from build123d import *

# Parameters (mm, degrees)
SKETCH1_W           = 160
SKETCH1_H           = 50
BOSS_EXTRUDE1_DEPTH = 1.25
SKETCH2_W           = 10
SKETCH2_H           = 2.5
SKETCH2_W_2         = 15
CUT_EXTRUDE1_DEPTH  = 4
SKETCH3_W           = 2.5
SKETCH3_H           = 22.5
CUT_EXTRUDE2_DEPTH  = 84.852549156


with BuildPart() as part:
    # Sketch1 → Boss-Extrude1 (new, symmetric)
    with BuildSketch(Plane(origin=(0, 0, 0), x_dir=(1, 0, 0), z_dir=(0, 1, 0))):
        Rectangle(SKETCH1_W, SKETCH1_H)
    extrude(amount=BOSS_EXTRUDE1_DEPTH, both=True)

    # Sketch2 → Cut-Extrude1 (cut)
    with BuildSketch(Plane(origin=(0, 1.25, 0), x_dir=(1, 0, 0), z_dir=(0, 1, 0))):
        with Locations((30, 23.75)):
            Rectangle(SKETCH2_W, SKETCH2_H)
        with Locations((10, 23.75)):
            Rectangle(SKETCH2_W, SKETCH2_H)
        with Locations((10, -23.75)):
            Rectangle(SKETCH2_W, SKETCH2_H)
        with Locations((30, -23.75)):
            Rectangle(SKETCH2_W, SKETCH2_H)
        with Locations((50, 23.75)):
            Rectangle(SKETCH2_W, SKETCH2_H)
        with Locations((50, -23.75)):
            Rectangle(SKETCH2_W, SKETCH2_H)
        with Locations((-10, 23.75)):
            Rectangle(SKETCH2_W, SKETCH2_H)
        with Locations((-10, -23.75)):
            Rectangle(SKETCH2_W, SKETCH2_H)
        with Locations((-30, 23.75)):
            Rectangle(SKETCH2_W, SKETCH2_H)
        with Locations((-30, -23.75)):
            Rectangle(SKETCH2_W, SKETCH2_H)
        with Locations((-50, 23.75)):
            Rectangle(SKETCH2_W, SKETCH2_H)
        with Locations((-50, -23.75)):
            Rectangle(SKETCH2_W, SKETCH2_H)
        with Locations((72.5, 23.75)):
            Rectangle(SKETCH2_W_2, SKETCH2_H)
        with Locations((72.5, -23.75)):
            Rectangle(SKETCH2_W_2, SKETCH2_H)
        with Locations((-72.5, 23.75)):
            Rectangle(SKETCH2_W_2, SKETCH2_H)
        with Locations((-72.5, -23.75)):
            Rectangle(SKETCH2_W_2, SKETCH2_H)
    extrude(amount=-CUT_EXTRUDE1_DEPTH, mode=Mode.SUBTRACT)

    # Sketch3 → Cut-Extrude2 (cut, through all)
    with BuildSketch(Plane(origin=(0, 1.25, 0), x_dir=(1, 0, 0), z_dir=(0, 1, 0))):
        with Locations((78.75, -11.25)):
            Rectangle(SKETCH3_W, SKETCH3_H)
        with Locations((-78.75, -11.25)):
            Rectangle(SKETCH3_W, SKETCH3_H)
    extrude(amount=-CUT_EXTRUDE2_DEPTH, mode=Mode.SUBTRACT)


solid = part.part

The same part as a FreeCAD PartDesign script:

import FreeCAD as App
import Part
import Sketcher
from FreeCAD import Vector

doc = App.newDocument("Part")
body = doc.addObject("PartDesign::Body", "Body")

sketch1 = doc.addObject("Sketcher::SketchObject", "Sketch")
body.addObject(sketch1)
sketch1.AttachmentSupport = (doc.XZ_Plane, [""])
sketch1.MapMode = "FlatFace"
sketch1.addGeometry([
    Part.LineSegment(Vector(-80, -25, 0), Vector(-80, 25, 0)),
    Part.LineSegment(Vector(-80, 25, 0), Vector(80, 25, 0)),
    Part.LineSegment(Vector(80, 25, 0), Vector(80, -25, 0)),
    Part.LineSegment(Vector(80, -25, 0), Vector(-80, -25, 0)),
], False)
sketch1.addConstraint([
    Sketcher.Constraint("Coincident", 0, 2, 1, 1),
    Sketcher.Constraint("Coincident", 1, 2, 2, 1),
    Sketcher.Constraint("Coincident", 2, 2, 3, 1),
    Sketcher.Constraint("Coincident", 3, 2, 0, 1),
    Sketcher.Constraint("Vertical", 0),
    Sketcher.Constraint("Horizontal", 1),
    Sketcher.Constraint("Vertical", 2),
    Sketcher.Constraint("Horizontal", 3),
    Sketcher.Constraint("Symmetric", 0, 2, 2, 2, -1, 1),
    Sketcher.Constraint("DistanceX", 1, 1, 1, 2, 160.0),
    Sketcher.Constraint("DistanceY", 0, 1, 0, 2, 50.0),
])
pad1 = doc.addObject("PartDesign::Pad", "Pad")
body.addObject(pad1)
pad1.Profile = sketch1
pad1.Length = 2.5
pad1.Midplane = True

sketch2 = doc.addObject("Sketcher::SketchObject", "Sketch001")
body.addObject(sketch2)
sketch2.AttachmentSupport = (doc.XZ_Plane, [""])
sketch2.MapMode = "FlatFace"
sketch2.AttachmentOffset = App.Placement(Vector(0, 0, -1.25), App.Rotation())
sketch2.addGeometry([
    Part.LineSegment(Vector(25, -25, 0), Vector(25, -22.5, 0)),
    Part.LineSegment(Vector(25, -22.5, 0), Vector(35, -22.5, 0)),
    Part.LineSegment(Vector(35, -22.5, 0), Vector(35, -25, 0)),
    Part.LineSegment(Vector(35, -25, 0), Vector(25, -25, 0)),
    Part.LineSegment(Vector(5, -25, 0), Vector(5, -22.5, 0)),
    Part.LineSegment(Vector(5, -22.5, 0), Vector(15, -22.5, 0)),
    Part.LineSegment(Vector(15, -22.5, 0), Vector(15, -25, 0)),
    Part.LineSegment(Vector(15, -25, 0), Vector(5, -25, 0)),
    Part.LineSegment(Vector(5, 22.5, 0), Vector(5, 25, 0)),
    Part.LineSegment(Vector(5, 25, 0), Vector(15, 25, 0)),
    Part.LineSegment(Vector(15, 25, 0), Vector(15, 22.5, 0)),
    Part.LineSegment(Vector(15, 22.5, 0), Vector(5, 22.5, 0)),
    Part.LineSegment(Vector(25, 22.5, 0), Vector(25, 25, 0)),
    Part.LineSegment(Vector(25, 25, 0), Vector(35, 25, 0)),
    Part.LineSegment(Vector(35, 25, 0), Vector(35, 22.5, 0)),
    Part.LineSegment(Vector(35, 22.5, 0), Vector(25, 22.5, 0)),
    Part.LineSegment(Vector(45, -25, 0), Vector(45, -22.5, 0)),
    Part.LineSegment(Vector(45, -22.5, 0), Vector(55, -22.5, 0)),
    Part.LineSegment(Vector(55, -22.5, 0), Vector(55, -25, 0)),
    Part.LineSegment(Vector(55, -25, 0), Vector(45, -25, 0)),
    Part.LineSegment(Vector(45, 22.5, 0), Vector(45, 25, 0)),
    Part.LineSegment(Vector(45, 25, 0), Vector(55, 25, 0)),
    Part.LineSegment(Vector(55, 25, 0), Vector(55, 22.5, 0)),
    Part.LineSegment(Vector(55, 22.5, 0), Vector(45, 22.5, 0)),
    Part.LineSegment(Vector(-15, -25, 0), Vector(-15, -22.5, 0)),
    Part.LineSegment(Vector(-15, -22.5, 0), Vector(-5, -22.5, 0)),
    Part.LineSegment(Vector(-5, -22.5, 0), Vector(-5, -25, 0)),
    Part.LineSegment(Vector(-5, -25, 0), Vector(-15, -25, 0)),
    Part.LineSegment(Vector(-15, 22.5, 0), Vector(-15, 25, 0)),
    Part.LineSegment(Vector(-15, 25, 0), Vector(-5, 25, 0)),
    Part.LineSegment(Vector(-5, 25, 0), Vector(-5, 22.5, 0)),
    Part.LineSegment(Vector(-5, 22.5, 0), Vector(-15, 22.5, 0)),
    Part.LineSegment(Vector(-35, -25, 0), Vector(-35, -22.5, 0)),
    Part.LineSegment(Vector(-35, -22.5, 0), Vector(-25, -22.5, 0)),
    Part.LineSegment(Vector(-25, -22.5, 0), Vector(-25, -25, 0)),
    Part.LineSegment(Vector(-25, -25, 0), Vector(-35, -25, 0)),
    Part.LineSegment(Vector(-35, 22.5, 0), Vector(-35, 25, 0)),
    Part.LineSegment(Vector(-35, 25, 0), Vector(-25, 25, 0)),
    Part.LineSegment(Vector(-25, 25, 0), Vector(-25, 22.5, 0)),
    Part.LineSegment(Vector(-25, 22.5, 0), Vector(-35, 22.5, 0)),
    Part.LineSegment(Vector(-55, -25, 0), Vector(-55, -22.5, 0)),
    Part.LineSegment(Vector(-55, -22.5, 0), Vector(-45, -22.5, 0)),
    Part.LineSegment(Vector(-45, -22.5, 0), Vector(-45, -25, 0)),
    Part.LineSegment(Vector(-45, -25, 0), Vector(-55, -25, 0)),
    Part.LineSegment(Vector(-55, 22.5, 0), Vector(-55, 25, 0)),
    Part.LineSegment(Vector(-55, 25, 0), Vector(-45, 25, 0)),
    Part.LineSegment(Vector(-45, 25, 0), Vector(-45, 22.5, 0)),
    Part.LineSegment(Vector(-45, 22.5, 0), Vector(-55, 22.5, 0)),
    Part.LineSegment(Vector(65, -25, 0), Vector(65, -22.5, 0)),
    Part.LineSegment(Vector(65, -22.5, 0), Vector(80, -22.5, 0)),
    Part.LineSegment(Vector(80, -22.5, 0), Vector(80, -25, 0)),
    Part.LineSegment(Vector(80, -25, 0), Vector(65, -25, 0)),
    Part.LineSegment(Vector(65, 22.5, 0), Vector(65, 25, 0)),
    Part.LineSegment(Vector(65, 25, 0), Vector(80, 25, 0)),
    Part.LineSegment(Vector(80, 25, 0), Vector(80, 22.5, 0)),
    Part.LineSegment(Vector(80, 22.5, 0), Vector(65, 22.5, 0)),
    Part.LineSegment(Vector(-80, -25, 0), Vector(-80, -22.5, 0)),
    Part.LineSegment(Vector(-80, -22.5, 0), Vector(-65, -22.5, 0)),
    Part.LineSegment(Vector(-65, -22.5, 0), Vector(-65, -25, 0)),
    Part.LineSegment(Vector(-65, -25, 0), Vector(-80, -25, 0)),
    Part.LineSegment(Vector(-80, 22.5, 0), Vector(-80, 25, 0)),
    Part.LineSegment(Vector(-80, 25, 0), Vector(-65, 25, 0)),
    Part.LineSegment(Vector(-65, 25, 0), Vector(-65, 22.5, 0)),
    Part.LineSegment(Vector(-65, 22.5, 0), Vector(-80, 22.5, 0)),
], False)
sketch2.addConstraint([
    Sketcher.Constraint("Coincident", 0, 2, 1, 1),
    Sketcher.Constraint("Coincident", 1, 2, 2, 1),
    Sketcher.Constraint("Coincident", 2, 2, 3, 1),
    Sketcher.Constraint("Coincident", 3, 2, 0, 1),
    Sketcher.Constraint("Coincident", 4, 2, 5, 1),
    Sketcher.Constraint("Coincident", 5, 2, 6, 1),
    Sketcher.Constraint("Coincident", 6, 2, 7, 1),
    Sketcher.Constraint("Coincident", 7, 2, 4, 1),
    Sketcher.Constraint("Coincident", 8, 2, 9, 1),
    Sketcher.Constraint("Coincident", 9, 2, 10, 1),
    Sketcher.Constraint("Coincident", 10, 2, 11, 1),
    Sketcher.Constraint("Coincident", 11, 2, 8, 1),
    Sketcher.Constraint("Coincident", 12, 2, 13, 1),
    Sketcher.Constraint("Coincident", 13, 2, 14, 1),
    Sketcher.Constraint("Coincident", 14, 2, 15, 1),
    Sketcher.Constraint("Coincident", 15, 2, 12, 1),
    Sketcher.Constraint("Coincident", 16, 2, 17, 1),
    Sketcher.Constraint("Coincident", 17, 2, 18, 1),
    Sketcher.Constraint("Coincident", 18, 2, 19, 1),
    Sketcher.Constraint("Coincident", 19, 2, 16, 1),
    Sketcher.Constraint("Coincident", 20, 2, 21, 1),
    Sketcher.Constraint("Coincident", 21, 2, 22, 1),
    Sketcher.Constraint("Coincident", 22, 2, 23, 1),
    Sketcher.Constraint("Coincident", 23, 2, 20, 1),
    Sketcher.Constraint("Coincident", 24, 2, 25, 1),
    Sketcher.Constraint("Coincident", 25, 2, 26, 1),
    Sketcher.Constraint("Coincident", 26, 2, 27, 1),
    Sketcher.Constraint("Coincident", 27, 2, 24, 1),
    Sketcher.Constraint("Coincident", 28, 2, 29, 1),
    Sketcher.Constraint("Coincident", 29, 2, 30, 1),
    Sketcher.Constraint("Coincident", 30, 2, 31, 1),
    Sketcher.Constraint("Coincident", 31, 2, 28, 1),
    Sketcher.Constraint("Coincident", 32, 2, 33, 1),
    Sketcher.Constraint("Coincident", 33, 2, 34, 1),
    Sketcher.Constraint("Coincident", 34, 2, 35, 1),
    Sketcher.Constraint("Coincident", 35, 2, 32, 1),
    Sketcher.Constraint("Coincident", 36, 2, 37, 1),
    Sketcher.Constraint("Coincident", 37, 2, 38, 1),
    Sketcher.Constraint("Coincident", 38, 2, 39, 1),
    Sketcher.Constraint("Coincident", 39, 2, 36, 1),
    Sketcher.Constraint("Coincident", 40, 2, 41, 1),
    Sketcher.Constraint("Coincident", 41, 2, 42, 1),
    Sketcher.Constraint("Coincident", 42, 2, 43, 1),
    Sketcher.Constraint("Coincident", 43, 2, 40, 1),
    Sketcher.Constraint("Coincident", 44, 2, 45, 1),
    Sketcher.Constraint("Coincident", 45, 2, 46, 1),
    Sketcher.Constraint("Coincident", 46, 2, 47, 1),
    Sketcher.Constraint("Coincident", 47, 2, 44, 1),
    Sketcher.Constraint("Coincident", 48, 2, 49, 1),
    Sketcher.Constraint("Coincident", 49, 2, 50, 1),
    Sketcher.Constraint("Coincident", 50, 2, 51, 1),
    Sketcher.Constraint("Coincident", 51, 2, 48, 1),
    Sketcher.Constraint("Coincident", 52, 2, 53, 1),
    Sketcher.Constraint("Coincident", 53, 2, 54, 1),
    Sketcher.Constraint("Coincident", 54, 2, 55, 1),
    Sketcher.Constraint("Coincident", 55, 2, 52, 1),
    Sketcher.Constraint("Coincident", 56, 2, 57, 1),
    Sketcher.Constraint("Coincident", 57, 2, 58, 1),
    Sketcher.Constraint("Coincident", 58, 2, 59, 1),
    Sketcher.Constraint("Coincident", 59, 2, 56, 1),
    Sketcher.Constraint("Coincident", 60, 2, 61, 1),
    Sketcher.Constraint("Coincident", 61, 2, 62, 1),
    Sketcher.Constraint("Coincident", 62, 2, 63, 1),
    Sketcher.Constraint("Coincident", 63, 2, 60, 1),
    Sketcher.Constraint("Vertical", 0),
    Sketcher.Constraint("Horizontal", 1),
    Sketcher.Constraint("Vertical", 2),
    Sketcher.Constraint("Horizontal", 3),
    Sketcher.Constraint("Vertical", 4),
    Sketcher.Constraint("Horizontal", 5),
    Sketcher.Constraint("Vertical", 6),
    Sketcher.Constraint("Horizontal", 7),
    Sketcher.Constraint("Vertical", 8),
    Sketcher.Constraint("Horizontal", 9),
    Sketcher.Constraint("Vertical", 10),
    Sketcher.Constraint("Horizontal", 11),
    Sketcher.Constraint("Vertical", 12),
    Sketcher.Constraint("Horizontal", 13),
    Sketcher.Constraint("Vertical", 14),
    Sketcher.Constraint("Horizontal", 15),
    Sketcher.Constraint("Vertical", 16),
    Sketcher.Constraint("Horizontal", 17),
    Sketcher.Constraint("Vertical", 18),
    Sketcher.Constraint("Horizontal", 19),
    Sketcher.Constraint("Vertical", 20),
    Sketcher.Constraint("Horizontal", 21),
    Sketcher.Constraint("Vertical", 22),
    Sketcher.Constraint("Horizontal", 23),
    Sketcher.Constraint("Vertical", 24),
    Sketcher.Constraint("Horizontal", 25),
    Sketcher.Constraint("Vertical", 26),
    Sketcher.Constraint("Horizontal", 27),
    Sketcher.Constraint("Vertical", 28),
    Sketcher.Constraint("Horizontal", 29),
    Sketcher.Constraint("Vertical", 30),
    Sketcher.Constraint("Horizontal", 31),
    Sketcher.Constraint("Vertical", 32),
    Sketcher.Constraint("Horizontal", 33),
    Sketcher.Constraint("Vertical", 34),
    Sketcher.Constraint("Horizontal", 35),
    Sketcher.Constraint("Vertical", 36),
    Sketcher.Constraint("Horizontal", 37),
    Sketcher.Constraint("Vertical", 38),
    Sketcher.Constraint("Horizontal", 39),
    Sketcher.Constraint("Vertical", 40),
    Sketcher.Constraint("Horizontal", 41),
    Sketcher.Constraint("Vertical", 42),
    Sketcher.Constraint("Horizontal", 43),
    Sketcher.Constraint("Vertical", 44),
    Sketcher.Constraint("Horizontal", 45),
    Sketcher.Constraint("Vertical", 46),
    Sketcher.Constraint("Horizontal", 47),
    Sketcher.Constraint("Vertical", 48),
    Sketcher.Constraint("Horizontal", 49),
    Sketcher.Constraint("Vertical", 50),
    Sketcher.Constraint("Horizontal", 51),
    Sketcher.Constraint("Vertical", 52),
    Sketcher.Constraint("Horizontal", 53),
    Sketcher.Constraint("Vertical", 54),
    Sketcher.Constraint("Horizontal", 55),
    Sketcher.Constraint("Vertical", 56),
    Sketcher.Constraint("Horizontal", 57),
    Sketcher.Constraint("Vertical", 58),
    Sketcher.Constraint("Horizontal", 59),
    Sketcher.Constraint("Vertical", 60),
    Sketcher.Constraint("Horizontal", 61),
    Sketcher.Constraint("Vertical", 62),
    Sketcher.Constraint("Horizontal", 63),
    Sketcher.Constraint("Symmetric", 10, 2, 24, 2, -1, 1),
    Sketcher.Constraint("Symmetric", 8, 2, 26, 2, -1, 1),
    Sketcher.Constraint("Symmetric", 6, 2, 28, 2, -1, 1),
    Sketcher.Constraint("Symmetric", 4, 2, 30, 2, -1, 1),
    Sketcher.Constraint("Symmetric", 14, 2, 32, 2, -1, 1),
    Sketcher.Constraint("Symmetric", 12, 2, 34, 2, -1, 1),
    Sketcher.Constraint("Symmetric", 2, 2, 36, 2, -1, 1),
    Sketcher.Constraint("Symmetric", 0, 2, 38, 2, -1, 1),
    Sketcher.Constraint("Symmetric", 22, 2, 40, 2, -1, 1),
    Sketcher.Constraint("Symmetric", 20, 2, 42, 2, -1, 1),
    Sketcher.Constraint("Symmetric", 18, 2, 44, 2, -1, 1),
    Sketcher.Constraint("Symmetric", 16, 2, 46, 2, -1, 1),
    Sketcher.Constraint("Symmetric", 54, 2, 56, 2, -1, 1),
    Sketcher.Constraint("Symmetric", 52, 2, 58, 2, -1, 1),
    Sketcher.Constraint("Symmetric", 50, 2, 60, 2, -1, 1),
    Sketcher.Constraint("Symmetric", 48, 2, 62, 2, -1, 1),
    Sketcher.Constraint("Symmetric", 5, 2, 24, 2, -2),
    Sketcher.Constraint("Symmetric", 7, 2, 26, 2, -2),
    Sketcher.Constraint("Symmetric", 1, 2, 32, 2, -2),
    Sketcher.Constraint("Symmetric", 3, 2, 34, 2, -2),
    Sketcher.Constraint("Symmetric", 17, 2, 40, 2, -2),
    Sketcher.Constraint("Symmetric", 19, 2, 42, 2, -2),
    Sketcher.Constraint("Symmetric", 49, 2, 56, 2, -2),
    Sketcher.Constraint("Symmetric", 51, 2, 58, 2, -2),
    Sketcher.Constraint("Horizontal", 1, 2, 4, 2),
    Sketcher.Constraint("Horizontal", 3, 2, 6, 2),
    Sketcher.Constraint("Horizontal", 5, 2, 16, 2),
    Sketcher.Constraint("Horizontal", 7, 2, 18, 2),
    Sketcher.Constraint("Horizontal", 41, 2, 48, 2),
    Sketcher.Constraint("Horizontal", 43, 2, 50, 2),
    Sketcher.Constraint("Equal", 3, 5),
    Sketcher.Constraint("Equal", 15, 17),
    Sketcher.Constraint("DistanceX", 1, 1, 1, 2, 10.0),
    Sketcher.Constraint("DistanceX", 49, 1, 49, 2, 15.0),
    Sketcher.Constraint("DistanceY", 0, 1, 0, 2, 2.5),
    Sketcher.Constraint("DistanceX", -1, 1, 0, 2, 25.0),
    Sketcher.Constraint("DistanceY", 2, 2, -1, 1, 25.0),
    Sketcher.Constraint("DistanceX", -1, 1, 4, 2, 5.0),
    Sketcher.Constraint("DistanceX", -1, 1, 16, 2, 45.0),
    Sketcher.Constraint("DistanceX", -1, 1, 48, 2, 65.0),
])
pocket1 = doc.addObject("PartDesign::Pocket", "Pocket")
body.addObject(pocket1)
pocket1.Profile = sketch2
pocket1.Length = 4
pocket1.Reversed = True

sketch3 = doc.addObject("Sketcher::SketchObject", "Sketch002")
body.addObject(sketch3)
sketch3.AttachmentSupport = (doc.XZ_Plane, [""])
sketch3.MapMode = "FlatFace"
sketch3.AttachmentOffset = App.Placement(Vector(0, 0, -1.25), App.Rotation())
sketch3.addGeometry([
    Part.LineSegment(Vector(77.5, 0, 0), Vector(77.5, 22.5, 0)),
    Part.LineSegment(Vector(77.5, 22.5, 0), Vector(80, 22.5, 0)),
    Part.LineSegment(Vector(80, 22.5, 0), Vector(80, 0, 0)),
    Part.LineSegment(Vector(80, 0, 0), Vector(77.5, 0, 0)),
    Part.LineSegment(Vector(-80, 0, 0), Vector(-80, 22.5, 0)),
    Part.LineSegment(Vector(-80, 22.5, 0), Vector(-77.5, 22.5, 0)),
    Part.LineSegment(Vector(-77.5, 22.5, 0), Vector(-77.5, 0, 0)),
    Part.LineSegment(Vector(-77.5, 0, 0), Vector(-80, 0, 0)),
], False)
sketch3.addConstraint([
    Sketcher.Constraint("Coincident", 0, 2, 1, 1),
    Sketcher.Constraint("Coincident", 1, 2, 2, 1),
    Sketcher.Constraint("Coincident", 2, 2, 3, 1),
    Sketcher.Constraint("Coincident", 3, 2, 0, 1),
    Sketcher.Constraint("Coincident", 4, 2, 5, 1),
    Sketcher.Constraint("Coincident", 5, 2, 6, 1),
    Sketcher.Constraint("Coincident", 6, 2, 7, 1),
    Sketcher.Constraint("Coincident", 7, 2, 4, 1),
    Sketcher.Constraint("Vertical", 0),
    Sketcher.Constraint("Horizontal", 1),
    Sketcher.Constraint("Vertical", 2),
    Sketcher.Constraint("Horizontal", 3),
    Sketcher.Constraint("Vertical", 4),
    Sketcher.Constraint("Horizontal", 5),
    Sketcher.Constraint("Vertical", 6),
    Sketcher.Constraint("Horizontal", 7),
    Sketcher.Constraint("Symmetric", 3, 2, 6, 2, -1, 1),
    Sketcher.Constraint("Symmetric", 1, 2, 4, 2, -2),
    Sketcher.Constraint("PointOnObject", 2, 2, -1),
    Sketcher.Constraint("DistanceX", 1, 1, 1, 2, 2.5),
    Sketcher.Constraint("DistanceY", 0, 1, 0, 2, 22.5),
    Sketcher.Constraint("DistanceX", -1, 1, 1, 2, 80.0),
])
pocket2 = doc.addObject("PartDesign::Pocket", "Pocket001")
body.addObject(pocket2)
pocket2.Profile = sketch3
pocket2.Type = "ThroughAll"
pocket2.Reversed = True

doc.recompute()
